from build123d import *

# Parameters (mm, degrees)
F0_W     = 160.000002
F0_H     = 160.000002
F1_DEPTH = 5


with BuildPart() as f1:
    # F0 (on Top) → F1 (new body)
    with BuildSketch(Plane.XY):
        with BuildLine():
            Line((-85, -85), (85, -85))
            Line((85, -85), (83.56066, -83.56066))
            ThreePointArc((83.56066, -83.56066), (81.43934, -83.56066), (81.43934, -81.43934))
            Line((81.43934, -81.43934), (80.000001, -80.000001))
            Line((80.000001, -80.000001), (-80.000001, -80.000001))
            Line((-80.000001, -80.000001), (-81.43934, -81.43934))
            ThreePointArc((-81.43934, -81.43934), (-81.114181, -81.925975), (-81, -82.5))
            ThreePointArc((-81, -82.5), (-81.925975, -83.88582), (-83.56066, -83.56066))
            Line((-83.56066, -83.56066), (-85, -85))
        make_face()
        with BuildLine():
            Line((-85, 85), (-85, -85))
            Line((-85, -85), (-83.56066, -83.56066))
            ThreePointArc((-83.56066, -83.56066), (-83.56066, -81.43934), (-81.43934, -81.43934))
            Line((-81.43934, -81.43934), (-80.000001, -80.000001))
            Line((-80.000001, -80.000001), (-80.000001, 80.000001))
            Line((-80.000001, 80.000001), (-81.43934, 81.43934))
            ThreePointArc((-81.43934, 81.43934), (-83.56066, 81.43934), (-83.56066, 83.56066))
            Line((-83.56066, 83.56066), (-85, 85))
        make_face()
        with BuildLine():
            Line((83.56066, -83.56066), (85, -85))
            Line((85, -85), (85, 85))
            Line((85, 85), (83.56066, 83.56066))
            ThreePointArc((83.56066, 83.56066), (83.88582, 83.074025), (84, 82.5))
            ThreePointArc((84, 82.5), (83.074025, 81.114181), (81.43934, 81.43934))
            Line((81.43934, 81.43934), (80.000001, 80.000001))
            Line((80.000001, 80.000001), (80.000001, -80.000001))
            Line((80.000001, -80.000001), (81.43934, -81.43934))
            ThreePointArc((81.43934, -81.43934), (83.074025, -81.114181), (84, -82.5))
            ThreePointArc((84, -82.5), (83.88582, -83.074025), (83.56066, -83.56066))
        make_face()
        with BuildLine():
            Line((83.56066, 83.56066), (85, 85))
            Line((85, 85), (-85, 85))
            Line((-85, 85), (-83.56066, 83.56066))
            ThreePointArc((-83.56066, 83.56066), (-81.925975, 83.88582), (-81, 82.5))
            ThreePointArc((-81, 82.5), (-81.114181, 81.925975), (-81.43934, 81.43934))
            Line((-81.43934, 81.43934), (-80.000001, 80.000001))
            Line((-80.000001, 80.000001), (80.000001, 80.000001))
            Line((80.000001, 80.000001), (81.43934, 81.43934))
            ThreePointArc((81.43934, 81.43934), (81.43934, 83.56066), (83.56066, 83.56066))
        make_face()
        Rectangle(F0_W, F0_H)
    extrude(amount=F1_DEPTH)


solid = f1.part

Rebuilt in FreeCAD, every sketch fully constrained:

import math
import FreeCAD as App
import Part
import Sketcher

doc = App.newDocument("Part")
body = doc.addObject("PartDesign::Body", "Body")

sketch1 = body.newObject("Sketcher::SketchObject", "Sketch")
sketch1.AttachmentSupport = (doc.getObject("XY_Plane"), [""])
sketch1.MapMode = "FlatFace"
sketch1.addGeometry(Part.LineSegment(App.Vector(-85, -85, 0), App.Vector(85, -85, 0)), False)
sketch1.addGeometry(Part.LineSegment(App.Vector(85, -85, 0), App.Vector(85, 85, 0)), False)
sketch1.addGeometry(Part.LineSegment(App.Vector(85, 85, 0), App.Vector(-85, 85, 0)), False)
sketch1.addGeometry(Part.LineSegment(App.Vector(-85, 85, 0), App.Vector(-85, -85, 0)), False)
sketch1.addGeometry(Part.ArcOfCircle(Part.Circle(App.Vector(82.500009, 82.500003, 0), App.Vector(0, 0, 1), 1.499991), math.radians(-0.000126), math.radians(45.000148)), False)
sketch1.addGeometry(Part.ArcOfCircle(Part.Circle(App.Vector(82.5, 82.5, 0), App.Vector(0, 0, 1), 1.5), math.radians(-134.99999), math.radians(-0.000014)), False)
sketch1.addGeometry(Part.ArcOfCircle(Part.Circle(App.Vector(82.5, 82.5, 0), App.Vector(0, 0, 1), 1.5), math.radians(45), math.radians(225)), False)
sketch1.addGeometry(Part.ArcOfCircle(Part.Circle(App.Vector(-82.5, 82.5, 0), App.Vector(0, 0, 1), 1.5), math.radians(135), math.radians(315)), False)
sketch1.addGeometry(Part.ArcOfCircle(Part.Circle(App.Vector(-82.499999, 82.500001, 0), App.Vector(0, 0, 1), 1.499999), math.radians(-0.000039), math.radians(135.000043)), False)
sketch1.addGeometry(Part.ArcOfCircle(Part.Circle(App.Vector(-82.500002, 82.500001, 0), App.Vector(0, 0, 1), 1.500002), math.radians(-44.999971), math.radians(-0.000052)), False)
sketch1.addGeometry(Part.ArcOfCircle(Part.Circle(App.Vector(82.5, -82.5, 0), App.Vector(0, 0, 1), 1.5), math.radians(135), math.radians(315)), False)
sketch1.addGeometry(Part.ArcOfCircle(Part.Circle(App.Vector(82.5, -82.5, 0), App.Vector(0, 0, 1), 1.5), math.radians(0.000014), math.radians(134.99999)), False)
sketch1.addGeometry(Part.ArcOfCircle(Part.Circle(App.Vector(82.500009, -82.500003, 0), App.Vector(0, 0, 1), 1.499991), math.radians(-45.000148), math.radians(0.000126)), False)
sketch1.addGeometry(Part.ArcOfCircle(Part.Circle(App.Vector(-82.500002, -82.500001, 0), App.Vector(0, 0, 1), 1.500002), math.radians(0.000052), math.radians(44.999971)), False)
sketch1.addGeometry(Part.ArcOfCircle(Part.Circle(App.Vector(-82.499999, -82.500001, 0), App.Vector(0, 0, 1), 1.499999), math.radians(-135.000043), math.radians(0.000039)), False)
sketch1.addGeometry(Part.ArcOfCircle(Part.Circle(App.Vector(-82.5, -82.5, 0), App.Vector(0, 0, 1), 1.5), math.radians(45), math.radians(225)), False)
sketch1.addConstraint(Sketcher.Constraint("Coincident", 0, 2, 1, 1))
sketch1.addConstraint(Sketcher.Constraint("Coincident", 1, 2, 2, 1))
sketch1.addConstraint(Sketcher.Constraint("Coincident", 2, 2, 3, 1))
sketch1.addConstraint(Sketcher.Constraint("Coincident", 3, 2, 0, 1))
sketch1.addConstraint(Sketcher.Constraint("Tangent", 4, 1, 5, 2))
sketch1.addConstraint(Sketcher.Constraint("Tangent", 5, 1, 6, 2))
sketch1.addConstraint(Sketcher.Constraint("Coincident", 6, 1, 4, 2))
sketch1.addConstraint(Sketcher.Constraint("Tangent", 7, 1, 8, 2))
sketch1.addConstraint(Sketcher.Constraint("Tangent", 8, 1, 9, 2))
sketch1.addConstraint(Sketcher.Constraint("Tangent", 9, 1, 7, 2))
sketch1.addConstraint(Sketcher.Constraint("Tangent", 10, 1, 11, 2))
sketch1.addConstraint(Sketcher.Constraint("Tangent", 11, 1, 12, 2))
sketch1.addConstraint(Sketcher.Constraint("Coincident", 12, 1, 10, 2))
sketch1.addConstraint(Sketcher.Constraint("Tangent", 13, 1, 14, 2))
sketch1.addConstraint(Sketcher.Constraint("Tangent", 14, 1, 15, 2))
sketch1.addConstraint(Sketcher.Constraint("Tangent", 15, 1, 13, 2))
sketch1.addConstraint(Sketcher.Constraint("Horizontal", 0))
sketch1.addConstraint(Sketcher.Constraint("Vertical", 1))
sketch1.addConstraint(Sketcher.Constraint("Horizontal", 2))
sketch1.addConstraint(Sketcher.Constraint("Vertical", 3))
sketch1.addConstraint(Sketcher.Constraint("Equal", 5, 6))
sketch1.addConstraint(Sketcher.Constraint("Equal", 6, 7))
sketch1.addConstraint(Sketcher.Constraint("Equal", 8, 10))
sketch1.addConstraint(Sketcher.Constraint("Equal", 10, 11))
sketch1.addConstraint(Sketcher.Constraint("Equal", 9, 13))
sketch1.addConstraint(Sketcher.Constraint("Symmetric", 7, 3, 10, 3, -1, 1))
sketch1.addConstraint(Sketcher.Constraint("Symmetric", 4, 3, 13, 3, -1, 1))
sketch1.addConstraint(Sketcher.Constraint("Symmetric", 0, 2, 2, 2, -1, 1))
sketch1.addConstraint(Sketcher.Constraint("Symmetric", 4, 3, 7, 3, -2))
sketch1.addConstraint(Sketcher.Constraint("Horizontal", 9, 3, 4, 1))
sketch1.addConstraint(Sketcher.Constraint("Horizontal", 6, 1, 7, 1))
sketch1.addConstraint(Sketcher.Constraint("Horizontal", 4, 1, 8, 1))
sketch1.addConstraint(Sketcher.Constraint("Horizontal", 5, 1, 9, 1))
sketch1.addConstraint(Sketcher.Constraint("Horizontal", 15, 3, 11, 1))
sketch1.addConstraint(Sketcher.Constraint("Horizontal", 11, 1, 13, 1))
sketch1.addConstraint(Sketcher.Constraint("Horizontal", 12, 1, 14, 1))
sketch1.addConstraint(Sketcher.Constraint("Horizontal", 10, 1, 15, 1))
sketch1.addConstraint(Sketcher.Constraint("Vertical", 5, 1, 10, 1))
sketch1.addConstraint(Sketcher.Constraint("Vertical", 6, 1, 12, 1))
sketch1.addConstraint(Sketcher.Constraint("Equal", 2, 1))
sketch1.addConstraint(Sketcher.Constraint("Radius", 5, 1.5))
sketch1.addConstraint(Sketcher.Constraint("DistanceX", 0, 1, 0, 2, 170.0))
sketch1.addConstraint(Sketcher.Constraint("DistanceX", -1, 1, 4, 1, 84.0))
sketch1.addConstraint(Sketcher.Constraint("DistanceY", 10, 3, 6, 3, 165.0))
sketch1.addConstraint(Sketcher.Constraint("DistanceX", 7, 1, 5, 1, 165.0))
sketch1.addConstraint(Sketcher.Constraint("DistanceX", -1, 1, 5, 1, 81.43934))
pad1 = body.newObject("PartDesign::Pad", "Pad")
pad1.Profile = sketch1
pad1.Length = 5

doc.recompute()
